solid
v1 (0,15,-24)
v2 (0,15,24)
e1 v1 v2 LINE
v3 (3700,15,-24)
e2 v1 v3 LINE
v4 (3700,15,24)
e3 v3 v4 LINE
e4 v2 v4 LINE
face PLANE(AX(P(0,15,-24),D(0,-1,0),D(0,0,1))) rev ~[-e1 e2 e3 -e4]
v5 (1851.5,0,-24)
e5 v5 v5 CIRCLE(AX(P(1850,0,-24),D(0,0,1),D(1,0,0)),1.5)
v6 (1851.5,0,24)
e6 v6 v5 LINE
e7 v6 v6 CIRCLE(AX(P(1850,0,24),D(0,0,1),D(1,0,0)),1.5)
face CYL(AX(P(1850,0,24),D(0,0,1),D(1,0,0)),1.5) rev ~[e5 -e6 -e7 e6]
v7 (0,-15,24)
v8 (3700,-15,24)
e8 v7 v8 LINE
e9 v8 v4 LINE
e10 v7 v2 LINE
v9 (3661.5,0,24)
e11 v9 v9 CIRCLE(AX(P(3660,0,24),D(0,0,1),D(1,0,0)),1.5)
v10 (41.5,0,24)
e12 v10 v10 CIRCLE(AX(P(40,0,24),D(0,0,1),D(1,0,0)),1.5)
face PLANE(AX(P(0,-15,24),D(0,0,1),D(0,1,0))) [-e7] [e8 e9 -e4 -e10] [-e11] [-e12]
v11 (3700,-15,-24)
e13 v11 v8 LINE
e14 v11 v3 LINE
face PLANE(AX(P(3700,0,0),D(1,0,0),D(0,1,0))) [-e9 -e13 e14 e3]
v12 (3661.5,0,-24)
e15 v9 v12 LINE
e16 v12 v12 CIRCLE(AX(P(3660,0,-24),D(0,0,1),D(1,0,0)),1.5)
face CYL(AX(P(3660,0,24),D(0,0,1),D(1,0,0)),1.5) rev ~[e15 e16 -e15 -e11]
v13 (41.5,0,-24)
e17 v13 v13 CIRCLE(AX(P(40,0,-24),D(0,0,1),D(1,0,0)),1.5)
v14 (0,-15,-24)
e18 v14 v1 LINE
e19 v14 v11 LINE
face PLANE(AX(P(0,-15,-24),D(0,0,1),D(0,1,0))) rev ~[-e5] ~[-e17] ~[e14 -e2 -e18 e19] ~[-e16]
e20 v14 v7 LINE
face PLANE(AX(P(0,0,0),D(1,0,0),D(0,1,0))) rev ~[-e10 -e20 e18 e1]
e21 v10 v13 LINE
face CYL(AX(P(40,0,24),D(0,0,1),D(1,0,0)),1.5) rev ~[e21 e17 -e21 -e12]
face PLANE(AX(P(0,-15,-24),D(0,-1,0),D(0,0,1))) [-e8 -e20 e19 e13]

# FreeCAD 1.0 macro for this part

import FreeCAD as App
import Part
import Sketcher
from FreeCAD import Vector


def add_polygon(sketch, points):
    """Adds a closed chain of lines whose ends are joined by coincident constraints."""
    first, n = sketch.GeometryCount, len(points)
    for a, b in zip(points, points[1:] + points[:1]):
        sketch.addGeometry(Part.LineSegment(App.Vector(*a, 0), App.Vector(*b, 0)), False)
    for i in range(n):
        sketch.addConstraint(Sketcher.Constraint("Coincident", first + i, 2, first + (i + 1) % n, 1))

doc = App.newDocument("Part")
body = doc.addObject("PartDesign::Body", "Body")

sketch1 = body.newObject("Sketcher::SketchObject", "Sketch")
sketch1.AttachmentSupport = (doc.getObject("YZ_Plane"), [""])
sketch1.MapMode = "FlatFace"
add_polygon(sketch1, [(-15, 24), (-15, -24), (15, -24), (15, 24)])
sketch1.addConstraint(Sketcher.Constraint("Vertical", 0))
sketch1.addConstraint(Sketcher.Constraint("Horizontal", 1))
sketch1.addConstraint(Sketcher.Constraint("Vertical", 2))
sketch1.addConstraint(Sketcher.Constraint("Horizontal", 3))
sketch1.addConstraint(Sketcher.Constraint("Symmetric", 0, 2, 2, 2, -1, 1))
sketch1.addConstraint(Sketcher.Constraint("DistanceX", 1, 1, 1, 2, 30.0))
sketch1.addConstraint(Sketcher.Constraint("DistanceY", 0, 2, 0, 1, 48.0))
pad1 = body.newObject("PartDesign::Pad", "Pad")
pad1.Profile = sketch1
pad1.Length = 3700

sketch2 = body.newObject("Sketcher::SketchObject", "Sketch001")
sketch2.AttachmentSupport = (doc.getObject("XY_Plane"), [""])
sketch2.MapMode = "FlatFace"
sketch2.AttachmentOffset = App.Placement(Vector(0, 0, 24), App.Rotation())
sketch2.addGeometry(Part.Circle(Vector(40, 0, 0), Vector(0, 0, 1), 1.5), False)
sketch2.addGeometry(Part.Circle(Vector(1850, 0, 0), Vector(0, 0, 1), 1.5), False)
sketch2.addGeometry(Part.Circle(Vector(3660, 0, 0), Vector(0, 0, 1), 1.5), False)
sketch2.addConstraint(Sketcher.Constraint("Equal", 0, 1))
sketch2.addConstraint(Sketcher.Constraint("Equal", 1, 2))
sketch2.addConstraint(Sketcher.Constraint("PointOnObject", 0, 3, -1))
sketch2.addConstraint(Sketcher.Constraint("PointOnObject", 1, 3, -1))
sketch2.addConstraint(Sketcher.Constraint("PointOnObject", 2, 3, -1))
sketch2.addConstraint(Sketcher.Constraint("Diameter", 0, 3.0))
sketch2.addConstraint(Sketcher.Constraint("DistanceX", -1, 1, 0, 3, 40.0))
sketch2.addConstraint(Sketcher.Constraint("DistanceX", -1, 1, 1, 3, 1850.0))
sketch2.addConstraint(Sketcher.Constraint("DistanceX", -1, 1, 2, 3, 3660.0))
pocket1 = body.newObject("PartDesign::Pocket", "Pocket")
pocket1.Profile = sketch2
pocket1.Length = 50

doc.recompute()
